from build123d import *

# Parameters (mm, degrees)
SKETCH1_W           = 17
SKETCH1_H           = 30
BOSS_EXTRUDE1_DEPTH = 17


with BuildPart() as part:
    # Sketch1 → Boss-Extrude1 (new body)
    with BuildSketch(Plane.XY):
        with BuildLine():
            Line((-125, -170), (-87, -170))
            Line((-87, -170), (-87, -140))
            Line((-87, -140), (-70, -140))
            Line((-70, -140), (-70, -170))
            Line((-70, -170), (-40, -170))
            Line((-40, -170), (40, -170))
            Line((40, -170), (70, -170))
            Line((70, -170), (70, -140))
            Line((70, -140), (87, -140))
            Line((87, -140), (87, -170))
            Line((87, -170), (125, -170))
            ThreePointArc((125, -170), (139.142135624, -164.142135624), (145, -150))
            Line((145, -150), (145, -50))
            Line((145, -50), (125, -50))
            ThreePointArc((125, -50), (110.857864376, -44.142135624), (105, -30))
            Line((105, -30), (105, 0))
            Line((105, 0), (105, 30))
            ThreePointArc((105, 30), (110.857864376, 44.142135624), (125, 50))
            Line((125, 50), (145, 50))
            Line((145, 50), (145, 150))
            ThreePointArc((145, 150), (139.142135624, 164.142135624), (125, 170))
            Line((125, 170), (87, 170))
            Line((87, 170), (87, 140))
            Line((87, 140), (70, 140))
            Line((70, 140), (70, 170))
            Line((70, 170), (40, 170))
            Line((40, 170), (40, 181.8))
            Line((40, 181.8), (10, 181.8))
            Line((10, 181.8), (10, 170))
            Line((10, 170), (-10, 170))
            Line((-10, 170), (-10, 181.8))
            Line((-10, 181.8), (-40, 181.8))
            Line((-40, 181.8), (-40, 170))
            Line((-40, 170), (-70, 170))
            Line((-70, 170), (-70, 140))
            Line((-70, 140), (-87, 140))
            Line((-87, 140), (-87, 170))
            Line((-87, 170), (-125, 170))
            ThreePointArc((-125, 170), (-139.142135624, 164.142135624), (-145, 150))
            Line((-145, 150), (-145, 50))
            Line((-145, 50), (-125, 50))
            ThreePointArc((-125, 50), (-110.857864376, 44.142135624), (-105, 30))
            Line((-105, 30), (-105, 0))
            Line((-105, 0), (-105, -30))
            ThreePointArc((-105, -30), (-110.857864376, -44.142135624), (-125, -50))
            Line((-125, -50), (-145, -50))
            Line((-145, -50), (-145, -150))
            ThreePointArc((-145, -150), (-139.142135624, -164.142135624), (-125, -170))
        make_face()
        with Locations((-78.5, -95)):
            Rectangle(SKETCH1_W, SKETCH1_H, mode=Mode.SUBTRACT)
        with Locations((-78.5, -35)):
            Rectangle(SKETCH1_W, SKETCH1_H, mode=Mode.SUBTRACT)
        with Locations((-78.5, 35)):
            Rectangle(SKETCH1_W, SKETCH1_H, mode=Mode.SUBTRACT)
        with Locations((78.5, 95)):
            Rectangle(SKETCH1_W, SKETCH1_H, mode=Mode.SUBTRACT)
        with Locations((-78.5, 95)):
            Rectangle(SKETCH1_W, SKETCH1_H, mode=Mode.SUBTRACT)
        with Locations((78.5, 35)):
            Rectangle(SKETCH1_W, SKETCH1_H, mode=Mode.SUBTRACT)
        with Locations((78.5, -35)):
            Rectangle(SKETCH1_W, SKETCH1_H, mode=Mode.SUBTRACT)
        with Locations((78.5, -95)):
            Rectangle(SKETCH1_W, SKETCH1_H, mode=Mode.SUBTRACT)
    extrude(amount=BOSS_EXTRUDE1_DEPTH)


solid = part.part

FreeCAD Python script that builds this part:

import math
import FreeCAD as App
import Part
import Sketcher
Q = App.Units.Quantity

doc = App.newDocument("Part")
body = doc.addObject("PartDesign::Body", "Body")

# Sketch on XY plane
sketch1 = body.newObject("Sketcher::SketchObject", "Sketch")
sketch1.AttachmentSupport = (doc.getObject("XY_Plane"), [""])
sketch1.MapMode = "FlatFace"
sketch1.addGeometry(Part.LineSegment(App.Vector(-125, -170, 0), App.Vector(-87, -170, 0)), False)
sketch1.addGeometry(Part.LineSegment(App.Vector(-87, -170, 0), App.Vector(-87, -140, 0)), False)
sketch1.addGeometry(Part.LineSegment(App.Vector(-87, -140, 0), App.Vector(-70, -140, 0)), False)
sketch1.addGeometry(Part.LineSegment(App.Vector(-70, -140, 0), App.Vector(-70, -170, 0)), False)
sketch1.addGeometry(Part.LineSegment(App.Vector(-70, -170, 0), App.Vector(70, -170, 0)), False)
sketch1.addGeometry(Part.LineSegment(App.Vector(70, -170, 0), App.Vector(70, -140, 0)), False)
sketch1.addGeometry(Part.LineSegment(App.Vector(70, -140, 0), App.Vector(87, -140, 0)), False)
sketch1.addGeometry(Part.LineSegment(App.Vector(87, -140, 0), App.Vector(87, -170, 0)), False)
sketch1.addGeometry(Part.LineSegment(App.Vector(87, -170, 0), App.Vector(125, -170, 0)), False)
sketch1.addGeometry(Part.ArcOfCircle(Part.Circle(App.Vector(125, -150, 0), App.Vector(0, 0, 1), 20), math.radians(-90), math.radians(0)), False)
sketch1.addGeometry(Part.LineSegment(App.Vector(145, -150, 0), App.Vector(145, -50, 0)), False)
sketch1.addGeometry(Part.LineSegment(App.Vector(145, -50, 0), App.Vector(125, -50, 0)), False)
sketch1.addGeometry(Part.ArcOfCircle(Part.Circle(App.Vector(125, -30, 0), App.Vector(0, 0, 1), 20), math.radians(180), math.radians(270)), False)
sketch1.addGeometry(Part.LineSegment(App.Vector(105, -30, 0), App.Vector(105, 30, 0)), False)
sketch1.addGeometry(Part.ArcOfCircle(Part.Circle(App.Vector(125, 30, 0), App.Vector(0, 0, 1), 20), math.radians(90), math.radians(180)), False)
sketch1.addGeometry(Part.LineSegment(App.Vector(125, 50, 0), App.Vector(145, 50, 0)), False)
sketch1.addGeometry(Part.LineSegment(App.Vector(145, 50, 0), App.Vector(145, 150, 0)), False)
sketch1.addGeometry(Part.ArcOfCircle(Part.Circle(App.Vector(125, 150, 0), App.Vector(0, 0, 1), 20), math.radians(0), math.radians(90)), False)
sketch1.addGeometry(Part.LineSegment(App.Vector(125, 170, 0), App.Vector(87, 170, 0)), False)
sketch1.addGeometry(Part.LineSegment(App.Vector(87, 170, 0), App.Vector(87, 140, 0)), False)
sketch1.addGeometry(Part.LineSegment(App.Vector(87, 140, 0), App.Vector(70, 140, 0)), False)
sketch1.addGeometry(Part.LineSegment(App.Vector(70, 140, 0), App.Vector(70, 170, 0)), False)
sketch1.addGeometry(Part.LineSegment(App.Vector(70, 170, 0), App.Vector(40, 170, 0)), False)
sketch1.addGeometry(Part.LineSegment(App.Vector(40, 170, 0), App.Vector(40, 181.8, 0)), False)
sketch1.addGeometry(Part.LineSegment(App.Vector(40, 181.8, 0), App.Vector(10, 181.8, 0)), False)
sketch1.addGeometry(Part.LineSegment(App.Vector(10, 181.8, 0), App.Vector(10, 170, 0)), False)
sketch1.addGeometry(Part.LineSegment(App.Vector(10, 170, 0), App.Vector(-10, 170, 0)), False)
sketch1.addGeometry(Part.LineSegment(App.Vector(-10, 170, 0), App.Vector(-10, 181.8, 0)), False)
sketch1.addGeometry(Part.LineSegment(App.Vector(-10, 181.8, 0), App.Vector(-40, 181.8, 0)), False)
sketch1.addGeometry(Part.LineSegment(App.Vector(-40, 181.8, 0), App.Vector(-40, 170, 0)), False)
sketch1.addGeometry(Part.LineSegment(App.Vector(-40, 170, 0), App.Vector(-70, 170, 0)), False)
sketch1.addGeometry(Part.LineSegment(App.Vector(-70, 170, 0), App.Vector(-70, 140, 0)), False)
sketch1.addGeometry(Part.LineSegment(App.Vector(-70, 140, 0), App.Vector(-87, 140, 0)), False)
sketch1.addGeometry(Part.LineSegment(App.Vector(-87, 140, 0), App.Vector(-87, 170, 0)), False)
sketch1.addGeometry(Part.LineSegment(App.Vector(-87, 170, 0), App.Vector(-125, 170, 0)), False)
sketch1.addGeometry(Part.ArcOfCircle(Part.Circle(App.Vector(-125, 150, 0), App.Vector(0, 0, 1), 20), math.radians(90), math.radians(180)), False)
sketch1.addGeometry(Part.LineSegment(App.Vector(-145, 150, 0), App.Vector(-145, 50, 0)), False)
sketch1.addGeometry(Part.LineSegment(App.Vector(-145, 50, 0), App.Vector(-125, 50, 0)), False)
sketch1.addGeometry(Part.ArcOfCircle(Part.Circle(App.Vector(-125, 30, 0), App.Vector(0, 0, 1), 20), math.radians(0), math.radians(90)), False)
sketch1.addGeometry(Part.LineSegment(App.Vector(-105, 30, 0), App.Vector(-105, -30, 0)), False)
sketch1.addGeometry(Part.ArcOfCircle(Part.Circle(App.Vector(-125, -30, 0), App.Vector(0, 0, 1), 20), math.radians(-90), math.radians(0)), False)
sketch1.addGeometry(Part.LineSegment(App.Vector(-125, -50, 0), App.Vector(-145, -50, 0)), False)
sketch1.addGeometry(Part.LineSegment(App.Vector(-145, -50, 0), App.Vector(-145, -150, 0)), False)
sketch1.addGeometry(Part.ArcOfCircle(Part.Circle(App.Vector(-125, -150, 0), App.Vector(0, 0, 1), 20), math.radians(180), math.radians(270)), False)
sketch1.addGeometry(Part.LineSegment(App.Vector(-70, -110, 0), App.Vector(-87, -110, 0)), False)
sketch1.addGeometry(Part.LineSegment(App.Vector(-87, -110, 0), App.Vector(-87, -80, 0)), False)
sketch1.addGeometry(Part.LineSegment(App.Vector(-87, -80, 0), App.Vector(-70, -80, 0)), False)
sketch1.addGeometry(Part.LineSegment(App.Vector(-70, -80, 0), App.Vector(-70, -110, 0)), False)
sketch1.addGeometry(Part.LineSegment(App.Vector(-70, -50, 0), App.Vector(-87, -50, 0)), False)
sketch1.addGeometry(Part.LineSegment(App.Vector(-87, -50, 0), App.Vector(-87, -20, 0)), False)
sketch1.addGeometry(Part.LineSegment(App.Vector(-87, -20, 0), App.Vector(-70, -20, 0)), False)
sketch1.addGeometry(Part.LineSegment(App.Vector(-70, -20, 0), App.Vector(-70, -50, 0)), False)
sketch1.addGeometry(Part.LineSegment(App.Vector(87, -110, 0), App.Vector(70, -110, 0)), False)
sketch1.addGeometry(Part.LineSegment(App.Vector(70, -110, 0), App.Vector(70, -80, 0)), False)
sketch1.addGeometry(Part.LineSegment(App.Vector(70, -80, 0), App.Vector(87, -80, 0)), False)
sketch1.addGeometry(Part.LineSegment(App.Vector(87, -80, 0), App.Vector(87, -110, 0)), False)
sketch1.addGeometry(Part.LineSegment(App.Vector(87, -50, 0), App.Vector(70, -50, 0)), False)
sketch1.addGeometry(Part.LineSegment(App.Vector(70, -50, 0), App.Vector(70, -20, 0)), False)
sketch1.addGeometry(Part.LineSegment(App.Vector(70, -20, 0), App.Vector(87, -20, 0)), False)
sketch1.addGeometry(Part.LineSegment(App.Vector(87, -20, 0), App.Vector(87, -50, 0)), False)
sketch1.addGeometry(Part.LineSegment(App.Vector(-70, 20, 0), App.Vector(-87, 20, 0)), False)
sketch1.addGeometry(Part.LineSegment(App.Vector(-87, 20, 0), App.Vector(-87, 50, 0)), False)
sketch1.addGeometry(Part.LineSegment(App.Vector(-87, 50, 0), App.Vector(-70, 50, 0)), False)
sketch1.addGeometry(Part.LineSegment(App.Vector(-70, 50, 0), App.Vector(-70, 20, 0)), False)
sketch1.addGeometry(Part.LineSegment(App.Vector(-70, 80, 0), App.Vector(-87, 80, 0)), False)
sketch1.addGeometry(Part.LineSegment(App.Vector(-87, 80, 0), App.Vector(-87, 110, 0)), False)
sketch1.addGeometry(Part.LineSegment(App.Vector(-87, 110, 0), App.Vector(-70, 110, 0)), False)
sketch1.addGeometry(Part.LineSegment(App.Vector(-70, 110, 0), App.Vector(-70, 80, 0)), False)
sketch1.addGeometry(Part.LineSegment(App.Vector(87, 20, 0), App.Vector(70, 20, 0)), False)
sketch1.addGeometry(Part.LineSegment(App.Vector(70, 20, 0), App.Vector(70, 50, 0)), False)
sketch1.addGeometry(Part.LineSegment(App.Vector(70, 50, 0), App.Vector(87, 50, 0)), False)
sketch1.addGeometry(Part.LineSegment(App.Vector(87, 50, 0), App.Vector(87, 20, 0)), False)
sketch1.addGeometry(Part.LineSegment(App.Vector(87, 80, 0), App.Vector(70, 80, 0)), False)
sketch1.addGeometry(Part.LineSegment(App.Vector(70, 80, 0), App.Vector(70, 110, 0)), False)
sketch1.addGeometry(Part.LineSegment(App.Vector(70, 110, 0), App.Vector(87, 110, 0)), False)
sketch1.addGeometry(Part.LineSegment(App.Vector(87, 110, 0), App.Vector(87, 80, 0)), False)
sketch1.addConstraint(Sketcher.Constraint("Coincident", 0, 2, 1, 1))
sketch1.addConstraint(Sketcher.Constraint("Coincident", 1, 2, 2, 1))
sketch1.addConstraint(Sketcher.Constraint("Coincident", 2, 2, 3, 1))
sketch1.addConstraint(Sketcher.Constraint("Coincident", 3, 2, 4, 1))
sketch1.addConstraint(Sketcher.Constraint("Coincident", 4, 2, 5, 1))
sketch1.addConstraint(Sketcher.Constraint("Coincident", 5, 2, 6, 1))
sketch1.addConstraint(Sketcher.Constraint("Coincident", 6, 2, 7, 1))
sketch1.addConstraint(Sketcher.Constraint("Coincident", 7, 2, 8, 1))
sketch1.addConstraint(Sketcher.Constraint("Tangent", 8, 2, 9, 1))
sketch1.addConstraint(Sketcher.Constraint("Tangent", 9, 2, 10, 1))
sketch1.addConstraint(Sketcher.Constraint("Coincident", 10, 2, 11, 1))
sketch1.addConstraint(Sketcher.Constraint("Tangent", 11, 2, 12, 2))
sketch1.addConstraint(Sketcher.Constraint("Tangent", 12, 1, 13, 1))
sketch1.addConstraint(Sketcher.Constraint("Tangent", 13, 2, 14, 2))
sketch1.addConstraint(Sketcher.Constraint("Tangent", 14, 1, 15, 1))
sketch1.addConstraint(Sketcher.Constraint("Coincident", 15, 2, 16, 1))
sketch1.addConstraint(Sketcher.Constraint("Tangent", 16, 2, 17, 1))
sketch1.addConstraint(Sketcher.Constraint("Tangent", 17, 2, 18, 1))
sketch1.addConstraint(Sketcher.Constraint("Coincident", 18, 2, 19, 1))
sketch1.addConstraint(Sketcher.Constraint("Coincident", 19, 2, 20, 1))
sketch1.addConstraint(Sketcher.Constraint("Coincident", 20, 2, 21, 1))
sketch1.addConstraint(Sketcher.Constraint("Coincident", 21, 2, 22, 1))
sketch1.addConstraint(Sketcher.Constraint("Coincident", 22, 2, 23, 1))
sketch1.addConstraint(Sketcher.Constraint("Coincident", 23, 2, 24, 1))
sketch1.addConstraint(Sketcher.Constraint("Coincident", 24, 2, 25, 1))
sketch1.addConstraint(Sketcher.Constraint("Coincident", 25, 2, 26, 1))
sketch1.addConstraint(Sketcher.Constraint("Coincident", 26, 2, 27, 1))
sketch1.addConstraint(Sketcher.Constraint("Coincident", 27, 2, 28, 1))
sketch1.addConstraint(Sketcher.Constraint("Coincident", 28, 2, 29, 1))
sketch1.addConstraint(Sketcher.Constraint("Coincident", 29, 2, 30, 1))
sketch1.addConstraint(Sketcher.Constraint("Coincident", 30, 2, 31, 1))
sketch1.addConstraint(Sketcher.Constraint("Coincident", 31, 2, 32, 1))
sketch1.addConstraint(Sketcher.Constraint("Coincident", 32, 2, 33, 1))
sketch1.addConstraint(Sketcher.Constraint("Coincident", 33, 2, 34, 1))
sketch1.addConstraint(Sketcher.Constraint("Tangent", 34, 2, 35, 1))
sketch1.addConstraint(Sketcher.Constraint("Tangent", 35, 2, 36, 1))
sketch1.addConstraint(Sketcher.Constraint("Coincident", 36, 2, 37, 1))
sketch1.addConstraint(Sketcher.Constraint("Tangent", 37, 2, 38, 2))
sketch1.addConstraint(Sketcher.Constraint("Tangent", 38, 1, 39, 1))
sketch1.addConstraint(Sketcher.Constraint("Tangent", 39, 2, 40, 2))
sketch1.addConstraint(Sketcher.Constraint("Tangent", 40, 1, 41, 1))
sketch1.addConstraint(Sketcher.Constraint("Coincident", 41, 2, 42, 1))
sketch1.addConstraint(Sketcher.Constraint("Tangent", 42, 2, 43, 1))
sketch1.addConstraint(Sketcher.Constraint("Tangent", 43, 2, 0, 1))
sketch1.addConstraint(Sketcher.Constraint("Coincident", 44, 2, 45, 1))
sketch1.addConstraint(Sketcher.Constraint("Coincident", 45, 2, 46, 1))
sketch1.addConstraint(Sketcher.Constraint("Coincident", 46, 2, 47, 1))
sketch1.addConstraint(Sketcher.Constraint("Coincident", 47, 2, 44, 1))
sketch1.addConstraint(Sketcher.Constraint("Coincident", 48, 2, 49, 1))
sketch1.addConstraint(Sketcher.Constraint("Coincident", 49, 2, 50, 1))
sketch1.addConstraint(Sketcher.Constraint("Coincident", 50, 2, 51, 1))
sketch1.addConstraint(Sketcher.Constraint("Coincident", 51, 2, 48, 1))
sketch1.addConstraint(Sketcher.Constraint("Coincident", 52, 2, 53, 1))
sketch1.addConstraint(Sketcher.Constraint("Coincident", 53, 2, 54, 1))
sketch1.addConstraint(Sketcher.Constraint("Coincident", 54, 2, 55, 1))
sketch1.addConstraint(Sketcher.Constraint("Coincident", 55, 2, 52, 1))
sketch1.addConstraint(Sketcher.Constraint("Coincident", 56, 2, 57, 1))
sketch1.addConstraint(Sketcher.Constraint("Coincident", 57, 2, 58, 1))
sketch1.addConstraint(Sketcher.Constraint("Coincident", 58, 2, 59, 1))
sketch1.addConstraint(Sketcher.Constraint("Coincident", 59, 2, 56, 1))
sketch1.addConstraint(Sketcher.Constraint("Coincident", 60, 2, 61, 1))
sketch1.addConstraint(Sketcher.Constraint("Coincident", 61, 2, 62, 1))
sketch1.addConstraint(Sketcher.Constraint("Coincident", 62, 2, 63, 1))
sketch1.addConstraint(Sketcher.Constraint("Coincident", 63, 2, 60, 1))
sketch1.addConstraint(Sketcher.Constraint("Coincident", 64, 2, 65, 1))
sketch1.addConstraint(Sketcher.Constraint("Coincident", 65, 2, 66, 1))
sketch1.addConstraint(Sketcher.Constraint("Coincident", 66, 2, 67, 1))
sketch1.addConstraint(Sketcher.Constraint("Coincident", 67, 2, 64, 1))
sketch1.addConstraint(Sketcher.Constraint("Coincident", 68, 2, 69, 1))
sketch1.addConstraint(Sketcher.Constraint("Coincident", 69, 2, 70, 1))
sketch1.addConstraint(Sketcher.Constraint("Coincident", 70, 2, 71, 1))
sketch1.addConstraint(Sketcher.Constraint("Coincident", 71, 2, 68, 1))
sketch1.addConstraint(Sketcher.Constraint("Coincident", 72, 2, 73, 1))
sketch1.addConstraint(Sketcher.Constraint("Coincident", 73, 2, 74, 1))
sketch1.addConstraint(Sketcher.Constraint("Coincident", 74, 2, 75, 1))
sketch1.addConstraint(Sketcher.Constraint("Coincident", 75, 2, 72, 1))
sketch1.addConstraint(Sketcher.Constraint("Horizontal", 0))
sketch1.addConstraint(Sketcher.Constraint("Vertical", 1))
sketch1.addConstraint(Sketcher.Constraint("Horizontal", 2))
sketch1.addConstraint(Sketcher.Constraint("Vertical", 3))
sketch1.addConstraint(Sketcher.Constraint("Horizontal", 4))
sketch1.addConstraint(Sketcher.Constraint("Vertical", 5))
sketch1.addConstraint(Sketcher.Constraint("Horizontal", 6))
sketch1.addConstraint(Sketcher.Constraint("Vertical", 7))
sketch1.addConstraint(Sketcher.Constraint("Horizontal", 8))
sketch1.addConstraint(Sketcher.Constraint("Vertical", 10))
sketch1.addConstraint(Sketcher.Constraint("Horizontal", 11))
sketch1.addConstraint(Sketcher.Constraint("Vertical", 13))
sketch1.addConstraint(Sketcher.Constraint("Horizontal", 15))
sketch1.addConstraint(Sketcher.Constraint("Vertical", 16))
sketch1.addConstraint(Sketcher.Constraint("Horizontal", 18))
sketch1.addConstraint(Sketcher.Constraint("Vertical", 19))
sketch1.addConstraint(Sketcher.Constraint("Horizontal", 20))
sketch1.addConstraint(Sketcher.Constraint("Vertical", 21))
sketch1.addConstraint(Sketcher.Constraint("Horizontal", 22))
sketch1.addConstraint(Sketcher.Constraint("Vertical", 23))
sketch1.addConstraint(Sketcher.Constraint("Horizontal", 24))
sketch1.addConstraint(Sketcher.Constraint("Vertical", 25))
sketch1.addConstraint(Sketcher.Constraint("Horizontal", 26))
sketch1.addConstraint(Sketcher.Constraint("Vertical", 27))
sketch1.addConstraint(Sketcher.Constraint("Horizontal", 28))
sketch1.addConstraint(Sketcher.Constraint("Vertical", 29))
sketch1.addConstraint(Sketcher.Constraint("Horizontal", 30))
sketch1.addConstraint(Sketcher.Constraint("Vertical", 31))
sketch1.addConstraint(Sketcher.Constraint("Horizontal", 32))
sketch1.addConstraint(Sketcher.Constraint("Vertical", 33))
sketch1.addConstraint(Sketcher.Constraint("Horizontal", 34))
sketch1.addConstraint(Sketcher.Constraint("Vertical", 36))
sketch1.addConstraint(Sketcher.Constraint("Horizontal", 37))
sketch1.addConstraint(Sketcher.Constraint("Vertical", 39))
sketch1.addConstraint(Sketcher.Constraint("Horizontal", 41))
sketch1.addConstraint(Sketcher.Constraint("Vertical", 42))
sketch1.addConstraint(Sketcher.Constraint("Horizontal", 44))
sketch1.addConstraint(Sketcher.Constraint("Vertical", 45))
sketch1.addConstraint(Sketcher.Constraint("Horizontal", 46))
sketch1.addConstraint(Sketcher.Constraint("Vertical", 47))
sketch1.addConstraint(Sketcher.Constraint("Horizontal", 48))
sketch1.addConstraint(Sketcher.Constraint("Vertical", 49))
sketch1.addConstraint(Sketcher.Constraint("Horizontal", 50))
sketch1.addConstraint(Sketcher.Constraint("Vertical", 51))
sketch1.addConstraint(Sketcher.Constraint("Horizontal", 52))
sketch1.addConstraint(Sketcher.Constraint("Vertical", 53))
sketch1.addConstraint(Sketcher.Constraint("Horizontal", 54))
sketch1.addConstraint(Sketcher.Constraint("Vertical", 55))
sketch1.addConstraint(Sketcher.Constraint("Horizontal", 56))
sketch1.addConstraint(Sketcher.Constraint("Vertical", 57))
sketch1.addConstraint(Sketcher.Constraint("Horizontal", 58))
sketch1.addConstraint(Sketcher.Constraint("Vertical", 59))
sketch1.addConstraint(Sketcher.Constraint("Horizontal", 60))
sketch1.addConstraint(Sketcher.Constraint("Vertical", 61))
sketch1.addConstraint(Sketcher.Constraint("Horizontal", 62))
sketch1.addConstraint(Sketcher.Constraint("Vertical", 63))
sketch1.addConstraint(Sketcher.Constraint("Horizontal", 64))
sketch1.addConstraint(Sketcher.Constraint("Vertical", 65))
sketch1.addConstraint(Sketcher.Constraint("Horizontal", 66))
sketch1.addConstraint(Sketcher.Constraint("Vertical", 67))
sketch1.addConstraint(Sketcher.Constraint("Horizontal", 68))
sketch1.addConstraint(Sketcher.Constraint("Vertical", 69))
sketch1.addConstraint(Sketcher.Constraint("Horizontal", 70))
sketch1.addConstraint(Sketcher.Constraint("Vertical", 71))
sketch1.addConstraint(Sketcher.Constraint("Horizontal", 72))
sketch1.addConstraint(Sketcher.Constraint("Vertical", 73))
sketch1.addConstraint(Sketcher.Constraint("Horizontal", 74))
sketch1.addConstraint(Sketcher.Constraint("Vertical", 75))
sketch1.addConstraint(Sketcher.Constraint("Equal", 9, 12))
sketch1.addConstraint(Sketcher.Constraint("Equal", 12, 14))
sketch1.addConstraint(Sketcher.Constraint("Equal", 14, 17))
sketch1.addConstraint(Sketcher.Constraint("Equal", 17, 35))
sketch1.addConstraint(Sketcher.Constraint("Equal", 35, 38))
sketch1.addConstraint(Sketcher.Constraint("Equal", 38, 40))
sketch1.addConstraint(Sketcher.Constraint("Equal", 40, 43))
sketch1.addConstraint(Sketcher.Constraint("Symmetric", 9, 3, 35, 3, -1, 1))
sketch1.addConstraint(Sketcher.Constraint("Symmetric", 12, 3, 38, 3, -1, 1))
sketch1.addConstraint(Sketcher.Constraint("Symmetric", 17, 3, 43, 3, -1, 1))
sketch1.addConstraint(Sketcher.Constraint("Symmetric", 1, 2, 19, 2, -1, 1))
sketch1.addConstraint(Sketcher.Constraint("Symmetric", 3, 2, 21, 2, -1, 1))
sketch1.addConstraint(Sketcher.Constraint("Symmetric", 4, 2, 30, 2, -1, 1))
sketch1.addConstraint(Sketcher.Constraint("Symmetric", 6, 2, 32, 2, -1, 1))
sketch1.addConstraint(Sketcher.Constraint("Symmetric", 58, 2, 60, 2, -1, 1))
sketch1.addConstraint(Sketcher.Constraint("Symmetric", 56, 2, 62, 2, -1, 1))
sketch1.addConstraint(Sketcher.Constraint("Symmetric", 54, 2, 64, 2, -1, 1))
sketch1.addConstraint(Sketcher.Constraint("Symmetric", 52, 2, 66, 2, -1, 1))
sketch1.addConstraint(Sketcher.Constraint("Symmetric", 50, 2, 68, 2, -1, 1))
sketch1.addConstraint(Sketcher.Constraint("Symmetric", 48, 2, 70, 2, -1, 1))
sketch1.addConstraint(Sketcher.Constraint("Symmetric", 46, 2, 72, 2, -1, 1))
sketch1.addConstraint(Sketcher.Constraint("Symmetric", 44, 2, 74, 2, -1, 1))
sketch1.addConstraint(Sketcher.Constraint("Symmetric", 17, 3, 35, 3, -2))
sketch1.addConstraint(Sketcher.Constraint("Symmetric", 2, 2, 5, 2, -2))
sketch1.addConstraint(Sketcher.Constraint("Symmetric", 24, 2, 27, 2, -2))
sketch1.addConstraint(Sketcher.Constraint("Symmetric", 47, 2, 52, 2, -2))
sketch1.addConstraint(Sketcher.Constraint("Symmetric", 45, 2, 54, 2, -2))
sketch1.addConstraint(Sketcher.Constraint("Symmetric", 51, 2, 56, 2, -2))
sketch1.addConstraint(Sketcher.Constraint("Symmetric", 49, 2, 58, 2, -2))
sketch1.addConstraint(Sketcher.Constraint("Horizontal", 14, 3, 38, 3))
sketch1.addConstraint(Sketcher.Constraint("Horizontal", 12, 3, 40, 3))
sketch1.addConstraint(Sketcher.Constraint("Horizontal", 0, 2, 3, 2))
sketch1.addConstraint(Sketcher.Constraint("Horizontal", 22, 2, 25, 2))
sketch1.addConstraint(Sketcher.Constraint("Horizontal", 41, 2, 48, 2))
sketch1.addConstraint(Sketcher.Constraint("Vertical", 9, 3, 12, 3))
sketch1.addConstraint(Sketcher.Constraint("Vertical", 7, 2, 18, 2))
sketch1.addConstraint(Sketcher.Constraint("Vertical", 33, 2, 44, 2))
sketch1.addConstraint(Sketcher.Constraint("Vertical", 31, 2, 46, 2))
sketch1.addConstraint(Sketcher.Constraint("Vertical", 45, 2, 48, 2))
sketch1.addConstraint(Sketcher.Constraint("Vertical", 47, 2, 50, 2))
sketch1.addConstraint(Sketcher.Constraint("Equal", 22, 24))
sketch1.addConstraint(Sketcher.Constraint("Equal", 15, 26))
sketch1.addConstraint(Sketcher.Constraint("Equal", 24, 28))
sketch1.addConstraint(Sketcher.Constraint("Equal", 30, 1))
sketch1.addConstraint(Sketcher.Constraint("Equal", 33, 45))
sketch1.addConstraint(Sketcher.Constraint("Equal", 47, 49))
sketch1.addConstraint(Sketcher.Constraint("Radius", 9, Q("20 mm")))
sketch1.addConstraint(Sketcher.Constraint("DistanceX", 0, 1, 0, 2, Q("38 mm")))
sketch1.addConstraint(Sketcher.Constraint("DistanceX", 2, 1, 2, 2, Q("17 mm")))
sketch1.addConstraint(Sketcher.Constraint("DistanceX", 4, 1, 4, 2, Q("140 mm")))
sketch1.addConstraint(Sketcher.Constraint("DistanceY", 10, 1, 10, 2, Q("100 mm")))
sketch1.addConstraint(Sketcher.Constraint("DistanceY", 13, 1, 13, 2, Q("60 mm")))
sketch1.addConstraint(Sketcher.Constraint("DistanceY", 23, 1, 23, 2, Q("11.8 mm")))
sketch1.addConstraint(Sketcher.Constraint("DistanceY", 44, 2, -1, 1, Q("110 mm")))
pad1 = body.newObject("PartDesign::Pad", "Pad")
pad1.Profile = sketch1
pad1.Length = 17

doc.recompute()
